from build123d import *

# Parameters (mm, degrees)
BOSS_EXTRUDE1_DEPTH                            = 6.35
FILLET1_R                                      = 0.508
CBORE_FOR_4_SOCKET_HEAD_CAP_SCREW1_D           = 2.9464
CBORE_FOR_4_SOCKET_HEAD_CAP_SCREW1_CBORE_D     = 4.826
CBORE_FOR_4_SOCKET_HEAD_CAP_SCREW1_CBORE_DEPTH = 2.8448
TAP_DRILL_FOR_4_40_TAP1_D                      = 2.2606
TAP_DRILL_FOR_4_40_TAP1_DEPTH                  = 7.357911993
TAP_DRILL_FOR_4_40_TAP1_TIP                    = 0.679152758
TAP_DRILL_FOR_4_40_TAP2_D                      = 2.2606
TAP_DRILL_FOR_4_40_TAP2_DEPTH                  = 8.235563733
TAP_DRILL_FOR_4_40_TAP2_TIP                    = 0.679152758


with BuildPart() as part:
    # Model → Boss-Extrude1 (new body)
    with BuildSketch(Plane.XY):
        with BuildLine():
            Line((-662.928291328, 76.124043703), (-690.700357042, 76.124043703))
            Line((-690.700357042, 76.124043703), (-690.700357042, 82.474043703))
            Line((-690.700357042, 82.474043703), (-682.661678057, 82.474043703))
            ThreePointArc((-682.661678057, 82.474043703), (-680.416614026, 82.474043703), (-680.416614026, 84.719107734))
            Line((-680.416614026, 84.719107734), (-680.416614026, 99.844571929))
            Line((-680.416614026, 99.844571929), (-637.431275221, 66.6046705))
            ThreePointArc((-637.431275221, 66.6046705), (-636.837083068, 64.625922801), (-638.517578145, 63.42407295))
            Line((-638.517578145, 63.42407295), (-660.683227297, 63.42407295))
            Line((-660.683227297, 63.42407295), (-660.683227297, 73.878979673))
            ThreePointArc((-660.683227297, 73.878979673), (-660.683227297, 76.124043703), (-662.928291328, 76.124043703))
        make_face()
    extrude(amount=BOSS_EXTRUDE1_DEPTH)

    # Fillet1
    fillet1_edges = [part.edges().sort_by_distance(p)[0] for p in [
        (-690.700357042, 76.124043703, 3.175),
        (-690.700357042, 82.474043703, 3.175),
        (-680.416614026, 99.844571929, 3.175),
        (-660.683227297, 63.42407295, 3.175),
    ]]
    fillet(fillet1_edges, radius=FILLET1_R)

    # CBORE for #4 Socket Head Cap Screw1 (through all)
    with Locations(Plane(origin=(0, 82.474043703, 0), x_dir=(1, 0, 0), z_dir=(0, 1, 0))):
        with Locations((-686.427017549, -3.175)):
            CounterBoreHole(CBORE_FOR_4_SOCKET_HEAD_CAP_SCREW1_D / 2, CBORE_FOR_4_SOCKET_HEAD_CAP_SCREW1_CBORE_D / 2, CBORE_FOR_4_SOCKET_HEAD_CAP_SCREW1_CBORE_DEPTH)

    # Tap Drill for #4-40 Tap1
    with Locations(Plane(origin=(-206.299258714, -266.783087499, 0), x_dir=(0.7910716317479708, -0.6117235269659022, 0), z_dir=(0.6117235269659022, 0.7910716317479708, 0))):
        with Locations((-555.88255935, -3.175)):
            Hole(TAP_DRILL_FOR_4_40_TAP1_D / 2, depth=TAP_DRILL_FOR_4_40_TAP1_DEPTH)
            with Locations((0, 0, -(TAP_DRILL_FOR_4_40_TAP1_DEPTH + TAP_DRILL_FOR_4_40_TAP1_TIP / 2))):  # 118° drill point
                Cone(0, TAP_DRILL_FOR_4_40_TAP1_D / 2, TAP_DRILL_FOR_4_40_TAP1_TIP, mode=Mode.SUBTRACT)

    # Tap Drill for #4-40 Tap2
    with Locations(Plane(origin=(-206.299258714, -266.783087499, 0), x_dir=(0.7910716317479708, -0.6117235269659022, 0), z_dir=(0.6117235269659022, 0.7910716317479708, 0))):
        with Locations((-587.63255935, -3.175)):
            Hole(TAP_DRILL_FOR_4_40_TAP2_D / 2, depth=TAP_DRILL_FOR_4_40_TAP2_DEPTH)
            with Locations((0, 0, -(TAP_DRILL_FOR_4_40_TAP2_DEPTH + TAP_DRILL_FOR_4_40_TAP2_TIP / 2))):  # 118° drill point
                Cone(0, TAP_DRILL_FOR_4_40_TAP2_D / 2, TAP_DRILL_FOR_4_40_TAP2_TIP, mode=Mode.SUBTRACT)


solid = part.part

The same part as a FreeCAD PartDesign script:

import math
import FreeCAD as App
import Part
import Sketcher
Q = App.Units.Quantity


def edges_at(feature, points):
    """Names of the edges that pass closest to the given points."""
    edges = feature.Shape.Edges
    near = lambda p: min(range(len(edges)), key=lambda i: edges[i].distToShape(Part.Vertex(*p))[0])
    return sorted({f"Edge{near(p) + 1}" for p in points})

doc = App.newDocument("Part")
body = doc.addObject("PartDesign::Body", "Body")

# Sketch on XY plane
sketch1 = doc.addObject("Sketcher::SketchObject", "Sketch")
body.addObject(sketch1)
sketch1.AttachmentSupport = (doc.XY_Plane, [""])
sketch1.MapMode = "FlatFace"
sketch1.addGeometry(Part.LineSegment(App.Vector(-690.700357, 76.124044, 0), App.Vector(-662.928291, 76.124044, 0)), False)
sketch1.addGeometry(Part.ArcOfCircle(Part.Circle(App.Vector(-661.805759, 75.001512, 0), App.Vector(0, 0, 1), 1.5875), math.radians(-45), math.radians(135)), False)
sketch1.addGeometry(Part.LineSegment(App.Vector(-660.683227, 73.87898, 0), App.Vector(-660.683227, 63.424073, 0)), False)
sketch1.addGeometry(Part.LineSegment(App.Vector(-660.683227, 63.424073, 0), App.Vector(-638.517578, 63.424073, 0)), False)
sketch1.addGeometry(Part.ArcOfCircle(Part.Circle(App.Vector(-638.517578, 65.19988, 0), App.Vector(0, 0, 1), 1.775807), math.radians(-90), math.radians(52.28577)), False)
sketch1.addGeometry(Part.LineSegment(App.Vector(-637.431275, 66.60467, 0), App.Vector(-680.416614, 99.844572, 0)), False)
sketch1.addGeometry(Part.LineSegment(App.Vector(-680.416614, 99.844572, 0), App.Vector(-680.416614, 84.719108, 0)), False)
sketch1.addGeometry(Part.ArcOfCircle(Part.Circle(App.Vector(-681.539146, 83.596576, 0), App.Vector(0, 0, 1), 1.5875), math.radians(-135), math.radians(45)), False)
sketch1.addGeometry(Part.LineSegment(App.Vector(-682.661678, 82.474044, 0), App.Vector(-690.700357, 82.474044, 0)), False)
sketch1.addGeometry(Part.LineSegment(App.Vector(-690.700357, 82.474044, 0), App.Vector(-690.700357, 76.124044, 0)), False)
sketch1.addConstraint(Sketcher.Constraint("Coincident", 0, 2, 1, 2))
sketch1.addConstraint(Sketcher.Constraint("Coincident", 1, 1, 2, 1))
sketch1.addConstraint(Sketcher.Constraint("Coincident", 2, 2, 3, 1))
sketch1.addConstraint(Sketcher.Constraint("Tangent", 3, 2, 4, 1))
sketch1.addConstraint(Sketcher.Constraint("Tangent", 4, 2, 5, 1))
sketch1.addConstraint(Sketcher.Constraint("Coincident", 5, 2, 6, 1))
sketch1.addConstraint(Sketcher.Constraint("Coincident", 6, 2, 7, 2))
sketch1.addConstraint(Sketcher.Constraint("Coincident", 7, 1, 8, 1))
sketch1.addConstraint(Sketcher.Constraint("Coincident", 8, 2, 9, 1))
sketch1.addConstraint(Sketcher.Constraint("Coincident", 9, 2, 0, 1))
sketch1.addConstraint(Sketcher.Constraint("Horizontal", 0))
sketch1.addConstraint(Sketcher.Constraint("Vertical", 2))
sketch1.addConstraint(Sketcher.Constraint("Horizontal", 3))
sketch1.addConstraint(Sketcher.Constraint("Vertical", 6))
sketch1.addConstraint(Sketcher.Constraint("Horizontal", 8))
sketch1.addConstraint(Sketcher.Constraint("Vertical", 9))
sketch1.addConstraint(Sketcher.Constraint("Equal", 1, 7))
sketch1.addConstraint(Sketcher.Constraint("Radius", 1, Q("0.0625 in")))
sketch1.addConstraint(Sketcher.Constraint("DistanceY", 9, 2, 9, 1, Q("0.25 in")))
sketch1.addConstraint(Sketcher.Constraint("Radius", 4, Q("1.775807 mm")))
sketch1.addConstraint(Sketcher.Constraint("DistanceX", 3, 1, 3, 2, Q("22.165649 mm")))
sketch1.addConstraint(Sketcher.Constraint("DistanceX", 8, 2, 8, 1, Q("8.038679 mm")))
sketch1.addConstraint(Sketcher.Constraint("DistanceY", 4, 3, 1, 1, Q("8.6791 mm")))
sketch1.addConstraint(Sketcher.Constraint("DistanceY", 2, 2, 5, 2, Q("36.420499 mm")))
sketch1.addConstraint(Sketcher.Constraint("Distance", 5, Q("54.338112 mm")))
sketch1.addConstraint(Sketcher.Constraint("DistanceX", 0, 1, 0, 2, Q("27.772066 mm")))
sketch1.addConstraint(Sketcher.Constraint("DistanceY", 6, 2, 6, 1, Q("15.125464 mm")))
sketch1.addConstraint(Sketcher.Constraint("DistanceX", 1, 3, -1, 1, Q("661.805759 mm")))
sketch1.addConstraint(Sketcher.Constraint("DistanceY", -1, 1, 1, 3, Q("75.001512 mm")))
sketch1.addConstraint(Sketcher.Constraint("DistanceX", 4, 3, -1, 1, Q("638.517578 mm")))
sketch1.addConstraint(Sketcher.Constraint("DistanceX", 7, 3, 1, 1, Q("20.855919 mm")))
pad1 = doc.addObject("PartDesign::Pad", "Pad")
body.addObject(pad1)
pad1.Profile = sketch1
pad1.Length = Q("0.25 in")
doc.recompute()

fillet = doc.addObject("PartDesign::Fillet", "Fillet")
body.addObject(fillet)
fillet.Base = (pad1, edges_at(pad1, [
    (-690.7, 76.124, 3.175),
    (-690.7, 82.474, 3.175),
    (-680.417, 99.845, 3.175),
    (-660.683, 63.424, 3.175),
]))
fillet.Radius = Q("0.02 in")

# Sketch on XZ plane
sketch2 = doc.addObject("Sketcher::SketchObject", "Sketch001")
body.addObject(sketch2)
sketch2.AttachmentSupport = (doc.XZ_Plane, [""])
sketch2.MapMode = "FlatFace"
sketch2.AttachmentOffset = App.Placement(App.Vector(0, 0, -82.474044), App.Rotation())
sketch2.addGeometry(Part.Circle(App.Vector(-686.427018, 3.175, 0), App.Vector(0, 0, 1), 1.4732), False)
sketch2.addConstraint(Sketcher.Constraint("Diameter", 0, Q("0.116 in")))
sketch2.addConstraint(Sketcher.Constraint("DistanceY", -1, 1, 0, 3, Q("0.125 in")))
sketch2.addConstraint(Sketcher.Constraint("DistanceX", 0, 3, -1, 1, Q("686.427018 mm")))
doc.recompute()
hole = doc.addObject("PartDesign::Hole", "Hole")
body.addObject(hole)
hole.Profile = sketch2
hole.ThreadType = "None"
hole.Diameter = Q("0.116 in")
hole.DepthType = "ThroughAll"
hole.HoleCutType = "Counterbore"
hole.HoleCutDiameter = Q("0.19 in")
hole.HoleCutDepth = Q("0.112 in")
hole.Reversed = True

# Sketch on an angled plane
sketch3 = doc.addObject("Sketcher::SketchObject", "Sketch002")
body.addObject(sketch3)
sketch3.Placement = App.Placement(App.Vector(-206.299259, -266.783087, 0), App.Rotation(App.Vector(0.791071632, -0.611723527, 0), App.Vector(0, 0, -1), App.Vector(0.611723527, 0.791071632, 0), "ZXY"))
sketch3.addGeometry(Part.Circle(App.Vector(-555.88256, -3.175, 0), App.Vector(0, 0, 1), 1.1303), False)
sketch3.addConstraint(Sketcher.Constraint("Diameter", 0, Q("0.089 in")))
sketch3.addConstraint(Sketcher.Constraint("DistanceY", 0, 3, -1, 1, Q("0.125 in")))
sketch3.addConstraint(Sketcher.Constraint("DistanceX", 0, 3, -1, 1, Q("555.88256 mm")))
doc.recompute()
hole2 = doc.addObject("PartDesign::Hole", "Hole001")
body.addObject(hole2)
hole2.Profile = sketch3
hole2.ThreadType = "None"
hole2.Diameter = Q("0.089 in")
hole2.DepthType = "Dimension"
hole2.Depth = 7.357912
hole2.DrillPoint = "Angled"
hole2.DrillPointAngle = 118

# Sketch on an angled plane
sketch4 = doc.addObject("Sketcher::SketchObject", "Sketch003")
body.addObject(sketch4)
sketch4.Placement = App.Placement(App.Vector(-206.299259, -266.783087, 0), App.Rotation(App.Vector(0.791071632, -0.611723527, 0), App.Vector(0, 0, -1), App.Vector(0.611723527, 0.791071632, 0), "ZXY"))
sketch4.addGeometry(Part.Circle(App.Vector(-587.63256, -3.175, 0), App.Vector(0, 0, 1), 1.1303), False)
sketch4.addConstraint(Sketcher.Constraint("Diameter", 0, Q("0.089 in")))
sketch4.addConstraint(Sketcher.Constraint("DistanceY", 0, 3, -1, 1, Q("0.125 in")))
sketch4.addConstraint(Sketcher.Constraint("DistanceX", 0, 3, -1, 1, Q("587.63256 mm")))
doc.recompute()
hole3 = doc.addObject("PartDesign::Hole", "Hole002")
body.addObject(hole3)
hole3.Profile = sketch4
hole3.ThreadType = "None"
hole3.Diameter = Q("0.089 in")
hole3.DepthType = "Dimension"
hole3.Depth = 8.235564
hole3.DrillPoint = "Angled"
hole3.DrillPointAngle = 118

doc.recompute()
